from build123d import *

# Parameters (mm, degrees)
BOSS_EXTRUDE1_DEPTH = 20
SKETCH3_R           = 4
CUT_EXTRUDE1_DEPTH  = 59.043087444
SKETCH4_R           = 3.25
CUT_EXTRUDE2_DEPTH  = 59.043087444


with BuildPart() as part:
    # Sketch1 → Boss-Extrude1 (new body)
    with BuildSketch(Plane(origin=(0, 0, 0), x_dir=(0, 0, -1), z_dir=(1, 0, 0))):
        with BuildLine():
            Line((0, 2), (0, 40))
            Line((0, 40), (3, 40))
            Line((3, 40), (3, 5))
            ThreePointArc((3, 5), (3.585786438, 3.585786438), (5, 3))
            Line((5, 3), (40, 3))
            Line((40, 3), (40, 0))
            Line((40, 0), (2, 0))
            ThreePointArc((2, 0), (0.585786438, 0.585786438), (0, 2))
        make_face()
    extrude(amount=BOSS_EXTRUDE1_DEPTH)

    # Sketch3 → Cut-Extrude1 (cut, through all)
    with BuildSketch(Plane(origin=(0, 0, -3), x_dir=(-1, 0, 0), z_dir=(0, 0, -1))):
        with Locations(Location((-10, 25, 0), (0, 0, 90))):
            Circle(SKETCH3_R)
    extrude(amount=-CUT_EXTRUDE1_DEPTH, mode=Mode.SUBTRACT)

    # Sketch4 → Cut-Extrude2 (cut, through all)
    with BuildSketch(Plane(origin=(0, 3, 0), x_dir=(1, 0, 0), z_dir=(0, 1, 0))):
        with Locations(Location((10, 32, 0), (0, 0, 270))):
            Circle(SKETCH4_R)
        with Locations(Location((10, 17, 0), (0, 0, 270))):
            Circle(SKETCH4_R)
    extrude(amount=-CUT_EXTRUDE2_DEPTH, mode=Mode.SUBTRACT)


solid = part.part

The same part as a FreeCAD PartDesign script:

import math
import FreeCAD as App
import Part
import Sketcher

V = App.Vector
Q = App.Units.Quantity

doc = App.newDocument("Part")
body = doc.addObject("PartDesign::Body", "Body")

# Sketch on YZ plane
sketch1 = body.newObject("Sketcher::SketchObject", "Sketch")
sketch1.AttachmentSupport = (doc.getObject("YZ_Plane"), [""])
sketch1.MapMode = "FlatFace"
sketch1.addGeometry(Part.LineSegment(V(40, 0, 0), V(2, 0, 0)), False)
sketch1.addGeometry(Part.ArcOfCircle(Part.Circle(V(2, -2, 0), V(0, 0, 1), 2), math.radians(90), math.radians(180)), False)
sketch1.addGeometry(Part.LineSegment(V(0, -2, 0), V(0, -40, 0)), False)
sketch1.addGeometry(Part.LineSegment(V(0, -40, 0), V(3, -40, 0)), False)
sketch1.addGeometry(Part.LineSegment(V(3, -40, 0), V(3, -5, 0)), False)
sketch1.addGeometry(Part.ArcOfCircle(Part.Circle(V(5, -5, 0), V(0, 0, 1), 2), math.radians(90), math.radians(180)), False)
sketch1.addGeometry(Part.LineSegment(V(5, -3, 0), V(40, -3, 0)), False)
sketch1.addGeometry(Part.LineSegment(V(40, -3, 0), V(40, 0, 0)), False)
sketch1.addConstraint(Sketcher.Constraint("Tangent", 0, 2, 1, 1))
sketch1.addConstraint(Sketcher.Constraint("Tangent", 1, 2, 2, 1))
sketch1.addConstraint(Sketcher.Constraint("Coincident", 2, 2, 3, 1))
sketch1.addConstraint(Sketcher.Constraint("Coincident", 3, 2, 4, 1))
sketch1.addConstraint(Sketcher.Constraint("Tangent", 4, 2, 5, 2))
sketch1.addConstraint(Sketcher.Constraint("Tangent", 5, 1, 6, 1))
sketch1.addConstraint(Sketcher.Constraint("Coincident", 6, 2, 7, 1))
sketch1.addConstraint(Sketcher.Constraint("Coincident", 7, 2, 0, 1))
sketch1.addConstraint(Sketcher.Constraint("Horizontal", 0))
sketch1.addConstraint(Sketcher.Constraint("Vertical", 2))
sketch1.addConstraint(Sketcher.Constraint("Horizontal", 3))
sketch1.addConstraint(Sketcher.Constraint("Vertical", 4))
sketch1.addConstraint(Sketcher.Constraint("Horizontal", 6))
sketch1.addConstraint(Sketcher.Constraint("Vertical", 7))
sketch1.addConstraint(Sketcher.Constraint("Equal", 1, 5))
sketch1.addConstraint(Sketcher.Constraint("PointOnObject", 0, 2, -1))
sketch1.addConstraint(Sketcher.Constraint("PointOnObject", 1, 2, -2))
sketch1.addConstraint(Sketcher.Constraint("Equal", 0, 2))
sketch1.addConstraint(Sketcher.Constraint("Equal", 6, 4))
sketch1.addConstraint(Sketcher.Constraint("Radius", 1, Q("2 mm")))
sketch1.addConstraint(Sketcher.Constraint("DistanceX", 0, 2, 0, 1, Q("38 mm")))
sketch1.addConstraint(Sketcher.Constraint("DistanceX", 3, 1, 3, 2, Q("3 mm")))
pad1 = body.newObject("PartDesign::Pad", "Pad")
pad1.Profile = sketch1
pad1.Length = 20

# Sketch on XY plane
sketch2 = body.newObject("Sketcher::SketchObject", "Sketch001")
sketch2.AttachmentSupport = (doc.getObject("XY_Plane"), [""])
sketch2.MapMode = "FlatFace"
sketch2.AttachmentOffset = App.Placement(V(0, 0, -3), App.Rotation())
sketch2.addGeometry(Part.Circle(V(10, 25, 0), V(0, 0, 1), 4), False)
sketch2.addConstraint(Sketcher.Constraint("Diameter", 0, Q("8 mm")))
sketch2.addConstraint(Sketcher.Constraint("DistanceX", -1, 1, 0, 3, Q("10 mm")))
sketch2.addConstraint(Sketcher.Constraint("DistanceY", -1, 1, 0, 3, Q("25 mm")))
pocket1 = body.newObject("PartDesign::Pocket", "Pocket")
pocket1.Profile = sketch2
pocket1.Type = "ThroughAll"
pocket1.Reversed = True

# Sketch on XZ plane
sketch3 = body.newObject("Sketcher::SketchObject", "Sketch002")
sketch3.AttachmentSupport = (doc.getObject("XZ_Plane"), [""])
sketch3.MapMode = "FlatFace"
sketch3.AttachmentOffset = App.Placement(V(0, 0, -3), App.Rotation())
sketch3.addGeometry(Part.Circle(V(10, -32, 0), V(0, 0, 1), 3.2), False)
sketch3.addGeometry(Part.Circle(V(10, -17, 0), V(0, 0, 1), 3.2), False)
sketch3.addConstraint(Sketcher.Constraint("Equal", 0, 1))
sketch3.addConstraint(Sketcher.Constraint("Vertical", 0, 3, 1, 3))
sketch3.addConstraint(Sketcher.Constraint("Diameter", 0, Q("6.5 mm")))
sketch3.addConstraint(Sketcher.Constraint("DistanceX", -1, 1, 0, 3, Q("10 mm")))
sketch3.addConstraint(Sketcher.Constraint("DistanceY", 0, 3, -1, 1, Q("32 mm")))
sketch3.addConstraint(Sketcher.Constraint("DistanceY", 1, 3, -1, 1, Q("17 mm")))
pocket2 = body.newObject("PartDesign::Pocket", "Pocket001")
pocket2.Profile = sketch3
pocket2.Type = "ThroughAll"
pocket2.Reversed = True

doc.recompute()
